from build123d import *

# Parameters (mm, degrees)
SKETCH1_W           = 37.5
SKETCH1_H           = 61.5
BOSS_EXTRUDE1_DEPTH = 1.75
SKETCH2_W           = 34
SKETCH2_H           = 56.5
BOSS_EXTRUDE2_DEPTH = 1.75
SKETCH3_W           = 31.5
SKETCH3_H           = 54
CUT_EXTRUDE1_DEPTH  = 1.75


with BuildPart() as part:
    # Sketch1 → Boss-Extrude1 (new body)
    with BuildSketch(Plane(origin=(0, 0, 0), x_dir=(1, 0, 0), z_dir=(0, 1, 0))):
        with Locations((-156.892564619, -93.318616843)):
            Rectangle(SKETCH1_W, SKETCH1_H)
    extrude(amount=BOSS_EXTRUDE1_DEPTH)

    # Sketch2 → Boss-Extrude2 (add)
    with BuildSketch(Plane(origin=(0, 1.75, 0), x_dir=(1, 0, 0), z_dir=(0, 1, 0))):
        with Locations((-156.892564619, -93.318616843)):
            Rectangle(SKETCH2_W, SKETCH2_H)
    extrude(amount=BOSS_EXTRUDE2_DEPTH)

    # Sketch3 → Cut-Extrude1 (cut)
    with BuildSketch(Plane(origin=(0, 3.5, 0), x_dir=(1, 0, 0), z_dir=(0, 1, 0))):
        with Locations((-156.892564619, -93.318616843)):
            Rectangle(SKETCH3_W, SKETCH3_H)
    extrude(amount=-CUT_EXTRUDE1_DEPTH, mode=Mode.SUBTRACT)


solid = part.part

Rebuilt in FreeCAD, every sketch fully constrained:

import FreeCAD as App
import Part
import Sketcher
Q = App.Units.Quantity

doc = App.newDocument("Part")
body = doc.addObject("PartDesign::Body", "Body")

sketch1 = body.newObject("Sketcher::SketchObject", "Sketch")
sketch1.AttachmentSupport = (doc.getObject("XZ_Plane"), [""])
sketch1.MapMode = "FlatFace"
sketch1.addGeometry(Part.LineSegment(App.Vector(-176, 63, 0), App.Vector(-176, 124, 0)), False)
sketch1.addGeometry(Part.LineSegment(App.Vector(-176, 124, 0), App.Vector(-138, 124, 0)), False)
sketch1.addGeometry(Part.LineSegment(App.Vector(-138, 124, 0), App.Vector(-138, 63, 0)), False)
sketch1.addGeometry(Part.LineSegment(App.Vector(-138, 63, 0), App.Vector(-176, 63, 0)), False)
sketch1.addConstraint(Sketcher.Constraint("Coincident", 0, 2, 1, 1))
sketch1.addConstraint(Sketcher.Constraint("Coincident", 1, 2, 2, 1))
sketch1.addConstraint(Sketcher.Constraint("Coincident", 2, 2, 3, 1))
sketch1.addConstraint(Sketcher.Constraint("Coincident", 3, 2, 0, 1))
sketch1.addConstraint(Sketcher.Constraint("Vertical", 0))
sketch1.addConstraint(Sketcher.Constraint("Horizontal", 1))
sketch1.addConstraint(Sketcher.Constraint("Vertical", 2))
sketch1.addConstraint(Sketcher.Constraint("Horizontal", 3))
sketch1.addConstraint(Sketcher.Constraint("DistanceX", 1, 1, 1, 2, Q("37.5 mm")))
sketch1.addConstraint(Sketcher.Constraint("DistanceY", 0, 1, 0, 2, Q("61.5 mm")))
sketch1.addConstraint(Sketcher.Constraint("DistanceX", 0, 2, -1, 1, Q("175.642565 mm")))
sketch1.addConstraint(Sketcher.Constraint("DistanceY", -1, 1, 0, 2, Q("124.068617 mm")))
pad1 = body.newObject("PartDesign::Pad", "Pad")
pad1.Profile = sketch1
pad1.Length = 1.75
pad1.Reversed = True

sketch2 = body.newObject("Sketcher::SketchObject", "Sketch001")
sketch2.AttachmentSupport = (doc.getObject("XZ_Plane"), [""])
sketch2.MapMode = "FlatFace"
sketch2.AttachmentOffset = App.Placement(App.Vector(0, 0, -1.75), App.Rotation())
sketch2.addGeometry(Part.LineSegment(App.Vector(-174, 65, 0), App.Vector(-174, 122, 0)), False)
sketch2.addGeometry(Part.LineSegment(App.Vector(-174, 122, 0), App.Vector(-140, 122, 0)), False)
sketch2.addGeometry(Part.LineSegment(App.Vector(-140, 122, 0), App.Vector(-140, 65, 0)), False)
sketch2.addGeometry(Part.LineSegment(App.Vector(-140, 65, 0), App.Vector(-174, 65, 0)), False)
sketch2.addConstraint(Sketcher.Constraint("Coincident", 0, 2, 1, 1))
sketch2.addConstraint(Sketcher.Constraint("Coincident", 1, 2, 2, 1))
sketch2.addConstraint(Sketcher.Constraint("Coincident", 2, 2, 3, 1))
sketch2.addConstraint(Sketcher.Constraint("Coincident", 3, 2, 0, 1))
sketch2.addConstraint(Sketcher.Constraint("Vertical", 0))
sketch2.addConstraint(Sketcher.Constraint("Horizontal", 1))
sketch2.addConstraint(Sketcher.Constraint("Vertical", 2))
sketch2.addConstraint(Sketcher.Constraint("Horizontal", 3))
sketch2.addConstraint(Sketcher.Constraint("DistanceX", 1, 1, 1, 2, Q("34 mm")))
sketch2.addConstraint(Sketcher.Constraint("DistanceY", 0, 1, 0, 2, Q("56.5 mm")))
sketch2.addConstraint(Sketcher.Constraint("DistanceX", 0, 2, -1, 1, Q("173.892565 mm")))
sketch2.addConstraint(Sketcher.Constraint("DistanceY", -1, 1, 0, 2, Q("121.568617 mm")))
pad2 = body.newObject("PartDesign::Pad", "Pad001")
pad2.Profile = sketch2
pad2.Length = 1.75
pad2.Reversed = True

sketch3 = body.newObject("Sketcher::SketchObject", "Sketch002")
sketch3.AttachmentSupport = (doc.getObject("XZ_Plane"), [""])
sketch3.MapMode = "FlatFace"
sketch3.AttachmentOffset = App.Placement(App.Vector(0, 0, -3.5), App.Rotation())
sketch3.addGeometry(Part.LineSegment(App.Vector(-173, 66, 0), App.Vector(-173, 120, 0)), False)
sketch3.addGeometry(Part.LineSegment(App.Vector(-173, 120, 0), App.Vector(-141, 120, 0)), False)
sketch3.addGeometry(Part.LineSegment(App.Vector(-141, 120, 0), App.Vector(-141, 66, 0)), False)
sketch3.addGeometry(Part.LineSegment(App.Vector(-141, 66, 0), App.Vector(-173, 66, 0)), False)
sketch3.addConstraint(Sketcher.Constraint("Coincident", 0, 2, 1, 1))
sketch3.addConstraint(Sketcher.Constraint("Coincident", 1, 2, 2, 1))
sketch3.addConstraint(Sketcher.Constraint("Coincident", 2, 2, 3, 1))
sketch3.addConstraint(Sketcher.Constraint("Coincident", 3, 2, 0, 1))
sketch3.addConstraint(Sketcher.Constraint("Vertical", 0))
sketch3.addConstraint(Sketcher.Constraint("Horizontal", 1))
sketch3.addConstraint(Sketcher.Constraint("Vertical", 2))
sketch3.addConstraint(Sketcher.Constraint("Horizontal", 3))
sketch3.addConstraint(Sketcher.Constraint("DistanceY", 0, 1, 0, 2, Q("54 mm")))
sketch3.addConstraint(Sketcher.Constraint("DistanceX", 1, 1, 1, 2, Q("31.5 mm")))
sketch3.addConstraint(Sketcher.Constraint("DistanceX", 0, 2, -1, 1, Q("172.642565 mm")))
sketch3.addConstraint(Sketcher.Constraint("DistanceY", -1, 1, 0, 2, Q("120.318617 mm")))
pocket1 = body.newObject("PartDesign::Pocket", "Pocket")
pocket1.Profile = sketch3
pocket1.Length = 1.75
pocket1.Reversed = True

doc.recompute()
